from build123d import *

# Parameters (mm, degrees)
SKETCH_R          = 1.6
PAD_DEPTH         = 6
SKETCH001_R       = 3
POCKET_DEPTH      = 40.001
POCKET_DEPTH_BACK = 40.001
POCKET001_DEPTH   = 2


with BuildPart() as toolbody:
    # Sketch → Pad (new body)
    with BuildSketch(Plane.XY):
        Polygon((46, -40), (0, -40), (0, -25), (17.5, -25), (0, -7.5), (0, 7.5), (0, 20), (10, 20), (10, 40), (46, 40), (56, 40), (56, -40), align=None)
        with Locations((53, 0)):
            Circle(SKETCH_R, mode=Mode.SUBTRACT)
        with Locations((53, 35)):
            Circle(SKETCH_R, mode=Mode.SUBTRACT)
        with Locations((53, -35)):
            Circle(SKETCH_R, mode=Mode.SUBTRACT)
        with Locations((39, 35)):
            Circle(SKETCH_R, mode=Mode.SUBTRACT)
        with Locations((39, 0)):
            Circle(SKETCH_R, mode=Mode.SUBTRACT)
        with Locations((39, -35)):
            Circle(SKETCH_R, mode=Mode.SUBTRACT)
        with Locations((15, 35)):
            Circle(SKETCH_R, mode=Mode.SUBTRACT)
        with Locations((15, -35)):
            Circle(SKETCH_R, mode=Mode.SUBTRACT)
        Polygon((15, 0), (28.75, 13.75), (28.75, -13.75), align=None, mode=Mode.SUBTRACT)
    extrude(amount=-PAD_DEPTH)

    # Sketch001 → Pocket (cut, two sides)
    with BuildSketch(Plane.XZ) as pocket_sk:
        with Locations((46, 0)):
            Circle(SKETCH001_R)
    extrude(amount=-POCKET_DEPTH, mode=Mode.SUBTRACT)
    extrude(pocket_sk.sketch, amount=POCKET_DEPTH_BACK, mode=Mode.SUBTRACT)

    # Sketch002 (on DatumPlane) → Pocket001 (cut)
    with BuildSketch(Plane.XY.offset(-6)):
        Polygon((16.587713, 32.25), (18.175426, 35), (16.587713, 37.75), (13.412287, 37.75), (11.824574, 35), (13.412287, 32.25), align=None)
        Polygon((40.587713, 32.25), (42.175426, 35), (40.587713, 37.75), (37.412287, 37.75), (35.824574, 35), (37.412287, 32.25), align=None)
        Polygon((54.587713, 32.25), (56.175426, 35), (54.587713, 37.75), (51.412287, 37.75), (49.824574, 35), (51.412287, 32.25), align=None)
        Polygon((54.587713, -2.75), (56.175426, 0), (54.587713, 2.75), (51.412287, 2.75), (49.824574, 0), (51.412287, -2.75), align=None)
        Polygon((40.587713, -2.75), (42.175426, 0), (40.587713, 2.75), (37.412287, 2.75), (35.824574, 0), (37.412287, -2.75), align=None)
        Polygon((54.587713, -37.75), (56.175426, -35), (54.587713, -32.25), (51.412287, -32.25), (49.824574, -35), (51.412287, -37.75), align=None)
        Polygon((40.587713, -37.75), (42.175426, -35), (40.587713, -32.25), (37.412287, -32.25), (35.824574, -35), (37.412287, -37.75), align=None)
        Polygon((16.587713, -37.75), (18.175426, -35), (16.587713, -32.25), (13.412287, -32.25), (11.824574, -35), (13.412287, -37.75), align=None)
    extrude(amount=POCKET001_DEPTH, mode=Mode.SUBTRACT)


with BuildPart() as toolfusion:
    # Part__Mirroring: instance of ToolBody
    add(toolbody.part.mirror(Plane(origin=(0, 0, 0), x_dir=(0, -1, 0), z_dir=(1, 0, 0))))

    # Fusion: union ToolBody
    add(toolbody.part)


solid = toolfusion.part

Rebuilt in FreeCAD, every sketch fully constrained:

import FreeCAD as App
import Part
import Sketcher
from FreeCAD import Vector
Q = App.Units.Quantity


def add_polygon(sketch, points):
    """Adds a closed chain of lines whose ends are joined by coincident constraints."""
    first, n = sketch.GeometryCount, len(points)
    for a, b in zip(points, points[1:] + points[:1]):
        sketch.addGeometry(Part.LineSegment(App.Vector(*a, 0), App.Vector(*b, 0)), False)
    for i in range(n):
        sketch.addConstraint(Sketcher.Constraint("Coincident", first + i, 2, first + (i + 1) % n, 1))

doc = App.newDocument("Part")
params = doc.addObject("Spreadsheet::Sheet", "Params")
for row, (alias, value) in enumerate([
    ("sketch1_diameter", "3.2 mm"),
    ("sketch1_width", "56 mm"),
    ("sketch1_width2", "46 mm"),
    ("sketch1_height", "80 mm"),
    ("sketch1_height2", "20 mm"),
    ("pad1_length", "6 mm"),
    ("sketch2_diameter", "6 mm"),
    ("pocket2_length", "2 mm"),
], start=1):
    params.set(f"A{row}", alias)
    params.set(f"B{row}", "=" + value)
    params.setAlias(f"B{row}", alias)

body = doc.addObject("PartDesign::Body", "Body")

sketch1 = body.newObject("Sketcher::SketchObject", "Sketch")
sketch1.AttachmentSupport = (doc.getObject("XY_Plane"), [""])
sketch1.MapMode = "FlatFace"
add_polygon(sketch1, [(0, -40), (56, -40), (56, 40), (10, 40), (10, 20), (0, 20), (0, -7.5), (17.5, -25), (0, -25)])
sketch1.addGeometry(Part.Circle(Vector(53, -35, 0), Vector(0, 0, 1), 1.6), False)
sketch1.addGeometry(Part.Circle(Vector(39, -35, 0), Vector(0, 0, 1), 1.6), False)
sketch1.addGeometry(Part.Circle(Vector(15, -35, 0), Vector(0, 0, 1), 1.6), False)
sketch1.addGeometry(Part.Circle(Vector(53, 0, 0), Vector(0, 0, 1), 1.6), False)
sketch1.addGeometry(Part.Circle(Vector(39, 0, 0), Vector(0, 0, 1), 1.6), False)
sketch1.addGeometry(Part.Circle(Vector(53, 35, 0), Vector(0, 0, 1), 1.6), False)
sketch1.addGeometry(Part.Circle(Vector(39, 35, 0), Vector(0, 0, 1), 1.6), False)
add_polygon(sketch1, [(15, 0), (28.8, 13.8), (28.8, -13.8)])
sketch1.addGeometry(Part.Circle(Vector(15, 35, 0), Vector(0, 0, 1), 1.6), False)
sketch1.addConstraint([
    Sketcher.Constraint("Horizontal", 0),
    Sketcher.Constraint("Vertical", 1),
    Sketcher.Constraint("Horizontal", 2),
    Sketcher.Constraint("Vertical", 3),
    Sketcher.Constraint("Horizontal", 4),
    Sketcher.Constraint("Vertical", 5),
    Sketcher.Constraint("Horizontal", 7),
    Sketcher.Constraint("Vertical", 8),
    Sketcher.Constraint("Vertical", 17),
    Sketcher.Constraint("Equal", 9, 10),
    Sketcher.Constraint("Equal", 10, 11),
    Sketcher.Constraint("Equal", 11, 12),
    Sketcher.Constraint("Equal", 12, 13),
    Sketcher.Constraint("Equal", 13, 14),
    Sketcher.Constraint("Equal", 14, 15),
    Sketcher.Constraint("Equal", 15, 19),
    Sketcher.Constraint("Symmetric", 9, 3, 14, 3, -1),
    Sketcher.Constraint("Symmetric", 10, 3, 15, 3, -1),
    Sketcher.Constraint("Symmetric", 11, 3, 19, 3, -1),
    Sketcher.Constraint("PointOnObject", 12, 3, -1),
    Sketcher.Constraint("PointOnObject", 13, 3, -1),
    Sketcher.Constraint("PointOnObject", 4, 2, -2),
    Sketcher.Constraint("PointOnObject", 7, 2, -2),
    Sketcher.Constraint("PointOnObject", 18, 2, -1),
    Sketcher.Constraint("Perpendicular", 6, 16),
    Sketcher.Constraint("Perpendicular", 16, 18),
    Sketcher.Constraint("Horizontal", 9, 3, 10, 3),
    Sketcher.Constraint("Horizontal", 10, 3, 11, 3),
    Sketcher.Constraint("Vertical", 9, 3, 12, 3),
    Sketcher.Constraint("Vertical", 10, 3, 13, 3),
    Sketcher.Constraint("Vertical", 19, 3, 18, 2),
    Sketcher.Constraint("Equal", 5, 17),
    Sketcher.Constraint("Equal", 16, 18),
    Sketcher.Constraint("Diameter", 9, 3.2),
    Sketcher.Constraint("DistanceX", 0, 1, 0, 2, 56.0),
    Sketcher.Constraint("DistanceX", 2, 2, 2, 1, 46.0),
    Sketcher.Constraint("DistanceY", 1, 1, 1, 2, 80.0),
    Sketcher.Constraint("DistanceY", 3, 2, 3, 1, 20.0),
    Sketcher.Constraint("DistanceY", 8, 2, 8, 1, 15.0),
    Sketcher.Constraint("DistanceX", 7, 2, 7, 1, 17.5),
    Sketcher.Constraint("DistanceX", -1, 1, 9, 3, 53.0),
    Sketcher.Constraint("DistanceY", 9, 3, -1, 1, 35.0),
    Sketcher.Constraint("DistanceX", -1, 1, 10, 3, 39.0),
    Sketcher.Constraint("DistanceX", -1, 1, 11, 3, 15.0),
    Sketcher.Constraint("DistanceY", 0, 2, -1, 1, 40.0),
])
sketch1.setExpression("Constraints[45]", "Params.sketch1_diameter")
sketch1.setExpression("Constraints[46]", "Params.sketch1_width")
sketch1.setExpression("Constraints[47]", "Params.sketch1_width2")
sketch1.setExpression("Constraints[48]", "Params.sketch1_height")
sketch1.setExpression("Constraints[49]", "Params.sketch1_height2")
pad1 = body.newObject("PartDesign::Pad", "Pad")
pad1.Profile = sketch1
pad1.setExpression("Length", "Params.pad1_length")
pad1.Reversed = True

sketch2 = body.newObject("Sketcher::SketchObject", "Sketch001")
sketch2.AttachmentSupport = (doc.getObject("XZ_Plane"), [""])
sketch2.MapMode = "FlatFace"
sketch2.addGeometry(Part.Circle(Vector(46, 0, 0), Vector(0, 0, 1), 3), False)
sketch2.addConstraint([
    Sketcher.Constraint("PointOnObject", 0, 3, -1),
    Sketcher.Constraint("Diameter", 0, 6.0),
    Sketcher.Constraint("DistanceX", -1, 1, 0, 3, 46.0),
])
sketch2.setExpression("Constraints[1]", "Params.sketch2_diameter")
pocket1 = body.newObject("PartDesign::Pocket", "Pocket")
pocket1.Profile = sketch2
pocket1.Type = "ThroughAll"
pocket1.Midplane = True

sketch3 = body.newObject("Sketcher::SketchObject", "Sketch002")
sketch3.AttachmentSupport = (doc.getObject("XY_Plane"), [""])
sketch3.MapMode = "FlatFace"
sketch3.AttachmentOffset = App.Placement(Vector(0, 0, -6), App.Rotation())
add_polygon(sketch3, [(16.6, 32.2), (18.2, 35), (16.6, 37.8), (13.4, 37.8), (11.8, 35), (13.4, 32.2)])
add_polygon(sketch3, [(40.6, 32.2), (42.2, 35), (40.6, 37.8), (37.4, 37.8), (35.8, 35), (37.4, 32.2)])
add_polygon(sketch3, [(54.6, 32.2), (56.2, 35), (54.6, 37.8), (51.4, 37.8), (49.8, 35), (51.4, 32.2)])
add_polygon(sketch3, [(54.6, -2.8), (56.2, 0), (54.6, 2.8), (51.4, 2.8), (49.8, 0), (51.4, -2.8)])
add_polygon(sketch3, [(40.6, -2.8), (42.2, 0), (40.6, 2.8), (37.4, 2.8), (35.8, 0), (37.4, -2.8)])
add_polygon(sketch3, [(54.6, -37.8), (56.2, -35), (54.6, -32.2), (51.4, -32.2), (49.8, -35), (51.4, -37.8)])
add_polygon(sketch3, [(40.6, -37.8), (42.2, -35), (40.6, -32.2), (37.4, -32.2), (35.8, -35), (37.4, -37.8)])
add_polygon(sketch3, [(16.6, -37.8), (18.2, -35), (16.6, -32.2), (13.4, -32.2), (11.8, -35), (13.4, -37.8)])
sketch3.addConstraint([
    Sketcher.Constraint("Horizontal", 2),
    Sketcher.Constraint("Horizontal", 5),
    Sketcher.Constraint("Horizontal", 8),
    Sketcher.Constraint("Horizontal", 11),
    Sketcher.Constraint("Horizontal", 14),
    Sketcher.Constraint("Horizontal", 17),
    Sketcher.Constraint("Horizontal", 20),
    Sketcher.Constraint("Horizontal", 23),
    Sketcher.Constraint("Horizontal", 26),
    Sketcher.Constraint("Horizontal", 29),
    Sketcher.Constraint("Horizontal", 32),
    Sketcher.Constraint("Horizontal", 35),
    Sketcher.Constraint("Horizontal", 38),
    Sketcher.Constraint("Horizontal", 41),
    Sketcher.Constraint("Horizontal", 44),
    Sketcher.Constraint("Horizontal", 47),
    Sketcher.Constraint("Symmetric", 20, 2, 22, 2, -1),
    Sketcher.Constraint("Symmetric", 26, 2, 28, 2, -1),
    Sketcher.Constraint("Symmetric", 12, 2, 30, 2, -1),
    Sketcher.Constraint("Symmetric", 17, 2, 31, 2, -1),
    Sketcher.Constraint("Symmetric", 15, 2, 33, 2, -1),
    Sketcher.Constraint("Symmetric", 14, 2, 34, 2, -1),
    Sketcher.Constraint("Symmetric", 6, 2, 36, 2, -1),
    Sketcher.Constraint("Symmetric", 11, 2, 37, 2, -1),
    Sketcher.Constraint("Symmetric", 9, 2, 39, 2, -1),
    Sketcher.Constraint("Symmetric", 8, 2, 40, 2, -1),
    Sketcher.Constraint("Symmetric", 0, 2, 42, 2, -1),
    Sketcher.Constraint("Symmetric", 5, 2, 43, 2, -1),
    Sketcher.Constraint("Symmetric", 3, 2, 45, 2, -1),
    Sketcher.Constraint("Symmetric", 2, 2, 46, 2, -1),
    Sketcher.Constraint("PointOnObject", 18, 2, -1),
    Sketcher.Constraint("PointOnObject", 21, 2, -1),
    Sketcher.Constraint("PointOnObject", 24, 2, -1),
    Sketcher.Constraint("PointOnObject", 27, 2, -1),
    Sketcher.Constraint("Parallel", 0, 3),
    Sketcher.Constraint("Parallel", 1, 4),
    Sketcher.Constraint("Parallel", 3, 6),
    Sketcher.Constraint("Parallel", 4, 7),
    Sketcher.Constraint("Parallel", 6, 9),
    Sketcher.Constraint("Parallel", 7, 10),
    Sketcher.Constraint("Parallel", 9, 12),
    Sketcher.Constraint("Parallel", 10, 13),
    Sketcher.Constraint("Parallel", 12, 15),
    Sketcher.Constraint("Parallel", 13, 16),
    Sketcher.Constraint("Parallel", 15, 18),
    Sketcher.Constraint("Parallel", 16, 19),
    Sketcher.Constraint("Parallel", 18, 21),
    Sketcher.Constraint("Parallel", 19, 22),
    Sketcher.Constraint("Parallel", 21, 24),
    Sketcher.Constraint("Parallel", 22, 25),
    Sketcher.Constraint("Parallel", 24, 27),
    Sketcher.Constraint("Parallel", 27, 30),
    Sketcher.Constraint("Parallel", 30, 33),
    Sketcher.Constraint("Parallel", 33, 36),
    Sketcher.Constraint("Parallel", 36, 39),
    Sketcher.Constraint("Parallel", 39, 42),
    Sketcher.Constraint("Parallel", 42, 45),
    Sketcher.Constraint("Horizontal", 0, 2, 3, 2),
    Sketcher.Constraint("Horizontal", 3, 2, 6, 2),
    Sketcher.Constraint("Horizontal", 2, 2, 7, 2),
    Sketcher.Constraint("Horizontal", 6, 2, 9, 2),
    Sketcher.Constraint("Horizontal", 5, 2, 10, 2),
    Sketcher.Constraint("Horizontal", 9, 2, 12, 2),
    Sketcher.Constraint("Horizontal", 8, 2, 13, 2),
    Sketcher.Constraint("Horizontal", 12, 2, 15, 2),
    Sketcher.Constraint("Horizontal", 11, 2, 16, 2),
    Sketcher.Constraint("Horizontal", 20, 2, 25, 2),
    Sketcher.Constraint("Vertical", 2, 2, 4, 2),
    Sketcher.Constraint("Vertical", 12, 2, 18, 2),
    Sketcher.Constraint("Vertical", 17, 2, 19, 2),
    Sketcher.Constraint("Vertical", 16, 2, 20, 2),
    Sketcher.Constraint("Vertical", 6, 2, 24, 2),
    Sketcher.Constraint("Vertical", 10, 2, 26, 2),
    Sketcher.Constraint("Equal", 5, 8),
    Sketcher.Constraint("Equal", 11, 14),
    Sketcher.Constraint("Angle", 0, Q("60.000004 deg")),
    Sketcher.Constraint("DistanceY", -1, 1, 0, 2, 35.0),
    Sketcher.Constraint("DistanceX", 0, 2, 6, 2, 24.0),
    Sketcher.Constraint("DistanceX", 6, 2, 12, 2, 14.0),
    Sketcher.Constraint("DistanceY", 4, 2, 2, 2, 5.5),
    Sketcher.Constraint("DistanceX", 2, 2, 2, 1, 3.175426),
    Sketcher.Constraint("DistanceX", -1, 1, 0, 2, 18.175426),
])
pocket2 = body.newObject("PartDesign::Pocket", "Pocket001")
pocket2.Profile = sketch3
pocket2.setExpression("Length", "Params.pocket2_length")
pocket2.Reversed = True
body2 = doc.addObject("PartDesign::Body", "Body001")
doc.recompute()

mirroring = doc.addObject("Part::Mirroring", "Mirroring")
mirroring.Source = body
mirroring.Base = Vector(0, 0, 0)
mirroring.Normal = Vector(1, 0, 0)
body2.BaseFeature = mirroring
doc.recompute()

boolean = body2.newObject("PartDesign::Boolean", "Boolean")
boolean.Type = "Fuse"
boolean.addObjects([body])
mirroring.Visibility = False

doc.recompute()
